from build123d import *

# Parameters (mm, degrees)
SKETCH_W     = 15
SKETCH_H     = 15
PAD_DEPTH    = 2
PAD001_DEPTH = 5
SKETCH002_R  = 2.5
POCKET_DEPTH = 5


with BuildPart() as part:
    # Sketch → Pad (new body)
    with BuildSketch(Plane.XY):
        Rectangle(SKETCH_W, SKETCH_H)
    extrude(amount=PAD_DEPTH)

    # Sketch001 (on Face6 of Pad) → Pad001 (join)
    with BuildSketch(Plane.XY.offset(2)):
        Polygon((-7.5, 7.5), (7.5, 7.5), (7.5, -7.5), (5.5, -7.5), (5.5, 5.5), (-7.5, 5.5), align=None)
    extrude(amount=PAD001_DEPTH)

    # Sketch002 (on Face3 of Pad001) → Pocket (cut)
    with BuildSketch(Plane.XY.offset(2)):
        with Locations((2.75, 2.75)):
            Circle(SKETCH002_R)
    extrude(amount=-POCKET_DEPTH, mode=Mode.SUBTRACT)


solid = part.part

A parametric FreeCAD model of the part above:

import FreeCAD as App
import Part
import Sketcher
Q = App.Units.Quantity

doc = App.newDocument("Part")
body = doc.addObject("PartDesign::Body", "Body")

# Sketch on XY plane
sketch1 = doc.addObject("Sketcher::SketchObject", "Sketch")
body.addObject(sketch1)
sketch1.AttachmentSupport = (doc.XY_Plane, [""])
sketch1.MapMode = "FlatFace"
sketch1.addGeometry([
    Part.LineSegment(App.Vector(-8, 8, 0), App.Vector(-8, -8, 0)),
    Part.LineSegment(App.Vector(-8, -8, 0), App.Vector(8, -8, 0)),
    Part.LineSegment(App.Vector(8, -8, 0), App.Vector(8, 8, 0)),
    Part.LineSegment(App.Vector(8, 8, 0), App.Vector(-8, 8, 0)),
], False)
sketch1.addConstraint([
    Sketcher.Constraint("Coincident", 0, 2, 1, 1),
    Sketcher.Constraint("Coincident", 1, 2, 2, 1),
    Sketcher.Constraint("Coincident", 2, 2, 3, 1),
    Sketcher.Constraint("Coincident", 3, 2, 0, 1),
    Sketcher.Constraint("Vertical", 0),
    Sketcher.Constraint("Horizontal", 1),
    Sketcher.Constraint("Vertical", 2),
    Sketcher.Constraint("Horizontal", 3),
    Sketcher.Constraint("Symmetric", 0, 2, 2, 2, -1, 1),
    Sketcher.Constraint("Equal", 3, 0),
    Sketcher.Constraint("DistanceX", 1, 1, 1, 2, Q("15 mm")),
])
pad1 = doc.addObject("PartDesign::Pad", "Pad")
body.addObject(pad1)
pad1.Profile = sketch1
pad1.Length = 2

# Sketch on XY plane
sketch2 = doc.addObject("Sketcher::SketchObject", "Sketch001")
body.addObject(sketch2)
sketch2.AttachmentSupport = (doc.XY_Plane, [""])
sketch2.MapMode = "FlatFace"
sketch2.AttachmentOffset = App.Placement(App.Vector(0, 0, 2), App.Rotation())
sketch2.addGeometry([
    Part.LineSegment(App.Vector(7.5, 7.5, 0), App.Vector(-7.5, 7.5, 0)),  # 0
    Part.LineSegment(App.Vector(-7.5, 7.5, 0), App.Vector(-7.5, 5.5, 0)),  # 1
    Part.LineSegment(App.Vector(-7.5, 5.5, 0), App.Vector(5.5, 5.5, 0)),  # 2
    Part.LineSegment(App.Vector(5.5, 5.5, 0), App.Vector(5.5, -7.5, 0)),  # 3
    Part.LineSegment(App.Vector(5.5, -7.5, 0), App.Vector(7.5, -7.5, 0)),  # 4
    Part.LineSegment(App.Vector(7.5, -7.5, 0), App.Vector(7.5, 7.5, 0)),  # 5
], False)
sketch2.addConstraint([
    Sketcher.Constraint("Coincident", 0, 2, 1, 1),
    Sketcher.Constraint("Coincident", 1, 2, 2, 1),
    Sketcher.Constraint("Coincident", 2, 2, 3, 1),
    Sketcher.Constraint("Coincident", 3, 2, 4, 1),
    Sketcher.Constraint("Coincident", 4, 2, 5, 1),
    Sketcher.Constraint("Coincident", 5, 2, 0, 1),
    Sketcher.Constraint("Horizontal", 0),
    Sketcher.Constraint("Vertical", 1),
    Sketcher.Constraint("Horizontal", 2),
    Sketcher.Constraint("Vertical", 3),
    Sketcher.Constraint("Horizontal", 4),
    Sketcher.Constraint("Vertical", 5),
    Sketcher.Constraint("Symmetric", 0, 2, 4, 2, -1, 1),
    Sketcher.Constraint("Equal", 4, 1),
    Sketcher.Constraint("Equal", 2, 3),
    Sketcher.Constraint("DistanceX", 0, 2, 0, 1, Q("15 mm")),
    Sketcher.Constraint("DistanceX", 2, 1, 2, 2, Q("13 mm")),
])
pad2 = doc.addObject("PartDesign::Pad", "Pad001")
body.addObject(pad2)
pad2.Profile = sketch2
pad2.Length = 5

# Sketch on XY plane
sketch3 = doc.addObject("Sketcher::SketchObject", "Sketch002")
body.addObject(sketch3)
sketch3.AttachmentSupport = (doc.XY_Plane, [""])
sketch3.MapMode = "FlatFace"
sketch3.AttachmentOffset = App.Placement(App.Vector(0, 0, 2), App.Rotation())
sketch3.addGeometry(Part.Circle(App.Vector(2.8, 2.8, 0), App.Vector(0, 0, 1), 2.5), False)
sketch3.addConstraint([
    Sketcher.Constraint("Diameter", 0, Q("5 mm")),
    Sketcher.Constraint("DistanceX", -1, 1, 0, 3, Q("2.75 mm")),
    Sketcher.Constraint("DistanceY", -1, 1, 0, 3, Q("2.75 mm")),
])
pocket1 = doc.addObject("PartDesign::Pocket", "Pocket")
body.addObject(pocket1)
pocket1.Profile = sketch3
pocket1.Length = 5

doc.recompute()
